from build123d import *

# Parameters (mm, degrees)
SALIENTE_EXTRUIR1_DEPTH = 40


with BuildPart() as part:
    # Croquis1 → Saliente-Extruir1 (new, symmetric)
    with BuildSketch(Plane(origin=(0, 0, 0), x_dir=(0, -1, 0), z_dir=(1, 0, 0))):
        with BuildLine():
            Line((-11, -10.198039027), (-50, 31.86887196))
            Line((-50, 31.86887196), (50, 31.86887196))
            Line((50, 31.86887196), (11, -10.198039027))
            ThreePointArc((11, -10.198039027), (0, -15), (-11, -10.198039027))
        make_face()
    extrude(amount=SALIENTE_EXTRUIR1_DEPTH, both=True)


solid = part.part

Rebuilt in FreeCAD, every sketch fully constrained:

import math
import FreeCAD as App
import Part
import Sketcher

doc = App.newDocument("Part")
body = doc.addObject("PartDesign::Body", "Body")

sketch1 = body.newObject("Sketcher::SketchObject", "Sketch")
sketch1.AttachmentSupport = (doc.getObject("YZ_Plane"), [""])
sketch1.MapMode = "FlatFace"
sketch1.addGeometry([
    Part.LineSegment(App.Vector(50, -31.868872, 0), App.Vector(11, 10.198039, 0)),
    Part.ArcOfCircle(Part.Circle(App.Vector(0, 0, 0), App.Vector(0, 0, 1), 15), math.radians(42.833428), math.radians(137.166572)),
    Part.LineSegment(App.Vector(-11, 10.198039, 0), App.Vector(-50, -31.868872, 0)),
    Part.LineSegment(App.Vector(-50, -31.868872, 0), App.Vector(50, -31.868872, 0)),
], False)
sketch1.addConstraint([
    Sketcher.Constraint("Tangent", 0, 2, 1, 1),
    Sketcher.Constraint("Tangent", 1, 2, 2, 1),
    Sketcher.Constraint("Coincident", 2, 2, 3, 1),
    Sketcher.Constraint("Coincident", 3, 2, 0, 1),
    Sketcher.Constraint("Horizontal", 3),
    Sketcher.Constraint("Coincident", 1, 3, -1, 1),
    Sketcher.Constraint("Horizontal", 0, 2, 1, 2),
    Sketcher.Constraint("Radius", 1, 15.0),
    Sketcher.Constraint("DistanceX", 3, 1, 3, 2, 100.0),
    Sketcher.Constraint("DistanceX", -1, 1, 0, 2, 11.0),
])
pad1 = body.newObject("PartDesign::Pad", "Pad")
pad1.Profile = sketch1
pad1.Length = 80
pad1.Midplane = True

doc.recompute()
